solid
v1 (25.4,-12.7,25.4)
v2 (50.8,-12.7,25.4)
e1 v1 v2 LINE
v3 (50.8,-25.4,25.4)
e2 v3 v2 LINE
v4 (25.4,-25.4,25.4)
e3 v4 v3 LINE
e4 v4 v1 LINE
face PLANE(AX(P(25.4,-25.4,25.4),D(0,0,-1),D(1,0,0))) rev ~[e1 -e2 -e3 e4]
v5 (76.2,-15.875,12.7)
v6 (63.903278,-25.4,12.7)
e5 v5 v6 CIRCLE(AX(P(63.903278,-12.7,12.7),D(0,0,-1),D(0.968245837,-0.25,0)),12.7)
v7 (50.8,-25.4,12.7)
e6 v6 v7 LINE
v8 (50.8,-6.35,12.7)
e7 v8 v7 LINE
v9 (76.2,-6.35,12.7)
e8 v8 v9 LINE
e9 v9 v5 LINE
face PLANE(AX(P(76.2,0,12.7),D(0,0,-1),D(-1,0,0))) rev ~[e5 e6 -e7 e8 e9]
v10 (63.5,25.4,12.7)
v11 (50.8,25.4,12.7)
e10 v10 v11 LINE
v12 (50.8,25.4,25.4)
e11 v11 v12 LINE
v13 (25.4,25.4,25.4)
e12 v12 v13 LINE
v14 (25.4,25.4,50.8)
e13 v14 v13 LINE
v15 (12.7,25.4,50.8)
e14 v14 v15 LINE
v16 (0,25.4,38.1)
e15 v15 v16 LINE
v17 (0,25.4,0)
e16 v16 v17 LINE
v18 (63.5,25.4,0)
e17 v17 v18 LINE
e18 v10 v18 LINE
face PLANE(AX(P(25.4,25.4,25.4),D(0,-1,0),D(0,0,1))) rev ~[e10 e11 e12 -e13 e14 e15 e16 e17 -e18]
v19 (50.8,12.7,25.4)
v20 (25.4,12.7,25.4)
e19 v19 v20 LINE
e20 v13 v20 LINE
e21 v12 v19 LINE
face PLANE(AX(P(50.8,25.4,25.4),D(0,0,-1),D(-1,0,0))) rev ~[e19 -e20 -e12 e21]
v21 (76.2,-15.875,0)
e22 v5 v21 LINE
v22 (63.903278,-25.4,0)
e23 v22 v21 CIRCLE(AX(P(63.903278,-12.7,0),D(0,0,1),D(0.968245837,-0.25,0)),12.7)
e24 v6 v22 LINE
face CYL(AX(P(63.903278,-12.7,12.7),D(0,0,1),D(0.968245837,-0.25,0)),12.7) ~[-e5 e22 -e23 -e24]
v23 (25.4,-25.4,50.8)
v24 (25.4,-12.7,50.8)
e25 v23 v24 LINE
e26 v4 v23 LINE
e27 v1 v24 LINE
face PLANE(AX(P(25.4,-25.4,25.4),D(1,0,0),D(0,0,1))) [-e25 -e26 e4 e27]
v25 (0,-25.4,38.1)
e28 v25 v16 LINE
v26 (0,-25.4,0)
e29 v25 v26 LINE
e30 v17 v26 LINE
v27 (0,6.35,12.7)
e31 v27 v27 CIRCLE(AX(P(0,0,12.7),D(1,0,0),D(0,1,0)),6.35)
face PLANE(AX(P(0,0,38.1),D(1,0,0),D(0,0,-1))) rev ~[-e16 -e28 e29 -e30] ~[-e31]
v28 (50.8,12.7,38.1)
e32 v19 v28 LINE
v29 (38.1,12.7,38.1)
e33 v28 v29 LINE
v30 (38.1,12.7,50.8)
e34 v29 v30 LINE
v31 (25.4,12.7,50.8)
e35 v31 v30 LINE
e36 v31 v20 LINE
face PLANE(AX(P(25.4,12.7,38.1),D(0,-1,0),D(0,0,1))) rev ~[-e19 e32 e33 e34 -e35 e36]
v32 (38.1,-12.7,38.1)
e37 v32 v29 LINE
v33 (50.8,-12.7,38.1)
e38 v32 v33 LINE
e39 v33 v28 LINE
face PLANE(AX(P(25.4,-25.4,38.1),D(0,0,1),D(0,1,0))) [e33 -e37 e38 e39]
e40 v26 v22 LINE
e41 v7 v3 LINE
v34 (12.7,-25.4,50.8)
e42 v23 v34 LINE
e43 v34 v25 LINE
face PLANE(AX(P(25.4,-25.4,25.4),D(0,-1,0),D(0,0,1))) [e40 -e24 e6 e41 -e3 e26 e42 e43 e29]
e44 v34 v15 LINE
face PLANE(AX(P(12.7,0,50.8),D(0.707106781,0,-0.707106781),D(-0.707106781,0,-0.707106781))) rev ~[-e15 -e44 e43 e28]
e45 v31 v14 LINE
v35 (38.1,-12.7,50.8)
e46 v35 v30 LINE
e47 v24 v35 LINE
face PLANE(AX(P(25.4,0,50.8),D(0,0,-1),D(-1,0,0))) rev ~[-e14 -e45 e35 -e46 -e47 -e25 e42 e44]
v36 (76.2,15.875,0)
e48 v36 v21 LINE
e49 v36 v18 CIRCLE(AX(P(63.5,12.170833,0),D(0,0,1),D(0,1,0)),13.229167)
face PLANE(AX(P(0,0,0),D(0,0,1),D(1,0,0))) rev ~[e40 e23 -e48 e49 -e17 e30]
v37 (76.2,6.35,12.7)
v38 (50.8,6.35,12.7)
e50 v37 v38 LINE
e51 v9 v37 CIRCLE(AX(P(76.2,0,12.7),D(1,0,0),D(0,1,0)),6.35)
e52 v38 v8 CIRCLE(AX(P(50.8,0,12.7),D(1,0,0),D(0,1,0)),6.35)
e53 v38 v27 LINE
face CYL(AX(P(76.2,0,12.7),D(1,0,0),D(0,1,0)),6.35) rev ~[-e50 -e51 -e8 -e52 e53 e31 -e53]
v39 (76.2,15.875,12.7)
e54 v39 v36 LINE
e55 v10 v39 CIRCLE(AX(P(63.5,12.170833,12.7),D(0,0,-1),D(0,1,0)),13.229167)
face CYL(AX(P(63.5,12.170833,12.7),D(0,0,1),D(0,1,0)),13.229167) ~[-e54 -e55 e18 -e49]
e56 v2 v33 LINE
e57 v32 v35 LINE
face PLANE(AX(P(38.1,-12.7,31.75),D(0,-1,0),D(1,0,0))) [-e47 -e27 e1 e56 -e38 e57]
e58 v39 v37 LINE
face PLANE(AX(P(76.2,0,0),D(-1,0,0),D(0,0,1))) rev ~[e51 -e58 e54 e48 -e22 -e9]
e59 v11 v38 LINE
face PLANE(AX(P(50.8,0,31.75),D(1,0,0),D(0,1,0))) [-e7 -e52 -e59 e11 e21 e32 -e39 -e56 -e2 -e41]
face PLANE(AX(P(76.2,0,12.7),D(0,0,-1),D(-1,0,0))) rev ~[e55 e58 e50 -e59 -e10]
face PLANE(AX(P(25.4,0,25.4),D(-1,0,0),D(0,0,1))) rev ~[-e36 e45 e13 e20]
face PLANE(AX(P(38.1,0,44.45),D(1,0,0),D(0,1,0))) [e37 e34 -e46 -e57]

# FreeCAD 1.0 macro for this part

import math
import FreeCAD as App
import Part
import Sketcher

V = App.Vector
Q = App.Units.Quantity


def add_polygon(sketch, points):
    """Adds a closed chain of lines whose ends are joined by coincident constraints."""
    first, n = sketch.GeometryCount, len(points)
    for a, b in zip(points, points[1:] + points[:1]):
        sketch.addGeometry(Part.LineSegment(App.Vector(*a, 0), App.Vector(*b, 0)), False)
    for i in range(n):
        sketch.addConstraint(Sketcher.Constraint("Coincident", first + i, 2, first + (i + 1) % n, 1))

doc = App.newDocument("Part")
body = doc.addObject("PartDesign::Body", "Body")

sketch1 = body.newObject("Sketcher::SketchObject", "Sketch")
sketch1.AttachmentSupport = (doc.getObject("XZ_Plane"), [""])
sketch1.MapMode = "FlatFace"
add_polygon(sketch1, [(0, 38), (0, 0), (76, 0), (76, 13), (51, 13), (51, 25), (25, 25), (25, 51), (13, 51)])
sketch1.addConstraint([
    Sketcher.Constraint("Vertical", 0),
    Sketcher.Constraint("Horizontal", 1),
    Sketcher.Constraint("Vertical", 2),
    Sketcher.Constraint("Horizontal", 3),
    Sketcher.Constraint("Vertical", 4),
    Sketcher.Constraint("Horizontal", 5),
    Sketcher.Constraint("Vertical", 6),
    Sketcher.Constraint("Horizontal", 7),
    Sketcher.Constraint("Coincident", 0, 2, -1, 1),
    Sketcher.Constraint("Equal", 3, 5),
    Sketcher.Constraint("Equal", 7, 2),
    Sketcher.Constraint("Equal", 2, 4),
    Sketcher.Constraint("Equal", 5, 6),
    Sketcher.Constraint("DistanceX", 1, 1, 1, 2, Q("3 in")),
    Sketcher.Constraint("DistanceX", 3, 2, 3, 1, Q("1 in")),
    Sketcher.Constraint("DistanceX", 7, 2, 7, 1, Q("0.5 in")),
    Sketcher.Constraint("DistanceY", 0, 2, 0, 1, Q("1.5 in")),
])
pad1 = body.newObject("PartDesign::Pad", "Pad")
pad1.Profile = sketch1
pad1.Type = "TwoLengths"
pad1.Length = Q("1 in")
pad1.Length2 = Q("1 in")
pad1.Reversed = True

sketch2 = body.newObject("Sketcher::SketchObject", "Sketch001")
sketch2.AttachmentSupport = (doc.getObject("YZ_Plane"), [""])
sketch2.MapMode = "FlatFace"
sketch2.AttachmentOffset = App.Placement(V(0, 0, 1 * 25.4), App.Rotation())
add_polygon(sketch2, [(-13, 51), (-13, 38), (13, 38), (13, 51)])
sketch2.addConstraint([
    Sketcher.Constraint("Vertical", 0),
    Sketcher.Constraint("Horizontal", 1),
    Sketcher.Constraint("Vertical", 2),
    Sketcher.Constraint("Horizontal", 3),
    Sketcher.Constraint("DistanceX", 1, 1, 1, 2, Q("1 in")),
    Sketcher.Constraint("DistanceY", 0, 2, 0, 1, Q("0.5 in")),
    Sketcher.Constraint("DistanceY", -1, 1, 2, 2, Q("2 in")),
    Sketcher.Constraint("DistanceX", 0, 2, -1, 1, Q("0.5 in")),
])
pad2 = body.newObject("PartDesign::Pad", "Pad001")
pad2.Profile = sketch2
pad2.Length = Q("0.5 in")

sketch3 = body.newObject("Sketcher::SketchObject", "Sketch002")
sketch3.AttachmentSupport = (doc.getObject("YZ_Plane"), [""])
sketch3.MapMode = "FlatFace"
sketch3.AttachmentOffset = App.Placement(V(0, 0, 1 * 25.4), App.Rotation())
add_polygon(sketch3, [(-25, 38), (-25, 25), (25, 25), (25, 38)])
sketch3.addConstraint([
    Sketcher.Constraint("Vertical", 0),
    Sketcher.Constraint("Horizontal", 1),
    Sketcher.Constraint("Vertical", 2),
    Sketcher.Constraint("Horizontal", 3),
    Sketcher.Constraint("DistanceX", 1, 1, 1, 2, Q("2 in")),
    Sketcher.Constraint("DistanceY", 0, 2, 0, 1, Q("0.5 in")),
    Sketcher.Constraint("DistanceX", 0, 2, -1, 1, Q("1 in")),
    Sketcher.Constraint("DistanceY", -1, 1, 0, 2, Q("1 in")),
])
pad3 = body.newObject("PartDesign::Pad", "Pad002")
pad3.Profile = sketch3
pad3.Length = Q("1 in")

sketch4 = body.newObject("Sketcher::SketchObject", "Sketch003")
sketch4.AttachmentSupport = (doc.getObject("XZ_Plane"), [""])
sketch4.MapMode = "FlatFace"
sketch4.AttachmentOffset = App.Placement(V(0, 0, 1 * 25.4), App.Rotation())
add_polygon(sketch4, [(25, 38), (25, 25), (51, 25), (51, 38)])
sketch4.addConstraint([
    Sketcher.Constraint("Vertical", 0),
    Sketcher.Constraint("Horizontal", 1),
    Sketcher.Constraint("Vertical", 2),
    Sketcher.Constraint("Horizontal", 3),
    Sketcher.Constraint("DistanceX", 1, 1, 1, 2, Q("1 in")),
    Sketcher.Constraint("DistanceY", 0, 2, 0, 1, Q("0.5 in")),
    Sketcher.Constraint("DistanceX", -1, 1, 0, 2, Q("1 in")),
    Sketcher.Constraint("DistanceY", -1, 1, 0, 2, Q("1 in")),
])
pocket1 = body.newObject("PartDesign::Pocket", "Pocket")
pocket1.Profile = sketch4
pocket1.Length = Q("0.5 in")

sketch5 = body.newObject("Sketcher::SketchObject", "Sketch004")
sketch5.AttachmentSupport = (doc.getObject("XZ_Plane"), [""])
sketch5.MapMode = "FlatFace"
sketch5.AttachmentOffset = App.Placement(V(0, 0, -1 * 25.4), App.Rotation())
add_polygon(sketch5, [(51, 38), (51, 25), (25, 25), (25, 38)])
sketch5.addConstraint([
    Sketcher.Constraint("Vertical", 0),
    Sketcher.Constraint("Horizontal", 1),
    Sketcher.Constraint("Vertical", 2),
    Sketcher.Constraint("Horizontal", 3),
    Sketcher.Constraint("DistanceX", 1, 2, 1, 1, Q("1 in")),
    Sketcher.Constraint("DistanceY", 0, 2, 0, 1, Q("0.5 in")),
    Sketcher.Constraint("DistanceX", -1, 1, 0, 2, Q("2 in")),
    Sketcher.Constraint("DistanceY", -1, 1, 0, 2, Q("1 in")),
])
pocket2 = body.newObject("PartDesign::Pocket", "Pocket001")
pocket2.Profile = sketch5
pocket2.Length = Q("0.5 in")
pocket2.Reversed = True

sketch6 = body.newObject("Sketcher::SketchObject", "Sketch005")
sketch6.AttachmentSupport = (doc.getObject("YZ_Plane"), [""])
sketch6.MapMode = "FlatFace"
sketch6.AttachmentOffset = App.Placement(V(0, 0, 3 * 25.4), App.Rotation())
sketch6.addGeometry(Part.Circle(V(0, 13, 0), V(0, 0, 1), 6), False)
sketch6.addConstraint([
    Sketcher.Constraint("PointOnObject", 0, 3, -2),
    Sketcher.Constraint("Diameter", 0, Q("0.5 in")),
    Sketcher.Constraint("DistanceY", -1, 1, 0, 3, Q("0.5 in")),
])
pocket3 = body.newObject("PartDesign::Pocket", "Pocket002")
pocket3.Profile = sketch6
pocket3.Type = "ThroughAll"

sketch7 = body.newObject("Sketcher::SketchObject", "Sketch006")
sketch7.AttachmentSupport = (doc.getObject("XY_Plane"), [""])
sketch7.MapMode = "FlatFace"
sketch7.AttachmentOffset = App.Placement(V(0, 0, 0.5 * 25.4), App.Rotation())
sketch7.addGeometry([
    Part.LineSegment(V(76, -25, 0), V(76, -16, 0)),
    Part.ArcOfCircle(Part.Circle(V(64, -13, 0), V(0, 0, 1), 13), math.radians(-90), math.radians(-14)),
    Part.LineSegment(V(64, -25, 0), V(76, -25, 0)),
], False)
sketch7.addConstraint([
    Sketcher.Constraint("Coincident", 0, 2, 1, 2),
    Sketcher.Constraint("Tangent", 1, 1, 2, 1),
    Sketcher.Constraint("Coincident", 2, 2, 0, 1),
    Sketcher.Constraint("Vertical", 0),
    Sketcher.Constraint("Horizontal", 2),
    Sketcher.Constraint("Radius", 1, Q("0.5 in")),
    Sketcher.Constraint("DistanceX", -1, 1, 0, 2, Q("3 in")),
    Sketcher.Constraint("DistanceY", 1, 1, -1, 1, Q("1 in")),
    Sketcher.Constraint("DistanceY", 0, 1, 0, 2, Q("0.375 in")),
])
pocket4 = body.newObject("PartDesign::Pocket", "Pocket003")
pocket4.Profile = sketch7
pocket4.Type = "ThroughAll"

sketch8 = body.newObject("Sketcher::SketchObject", "Sketch007")
sketch8.AttachmentSupport = (doc.getObject("XY_Plane"), [""])
sketch8.MapMode = "FlatFace"
sketch8.AttachmentOffset = App.Placement(V(0, 0, 0.5 * 25.4), App.Rotation())
sketch8.addGeometry([
    Part.ArcOfCircle(Part.Circle(V(64, 12, 0), V(0, 0, 1), 13), math.radians(16), math.radians(90)),
    Part.LineSegment(V(76, 16, 0), V(76, 25, 0)),
    Part.LineSegment(V(76, 25, 0), V(64, 25, 0)),
], False)
sketch8.addConstraint([
    Sketcher.Constraint("Coincident", 0, 1, 1, 1),
    Sketcher.Constraint("Coincident", 1, 2, 2, 1),
    Sketcher.Constraint("Tangent", 2, 2, 0, 2),
    Sketcher.Constraint("Vertical", 1),
    Sketcher.Constraint("Horizontal", 2),
    Sketcher.Constraint("DistanceX", 2, 2, 2, 1, Q("0.5 in")),
    Sketcher.Constraint("DistanceX", -1, 1, 0, 1, Q("3 in")),
    Sketcher.Constraint("DistanceY", -1, 1, 1, 2, Q("1 in")),
    Sketcher.Constraint("DistanceY", 1, 1, 1, 2, Q("0.375 in")),
])
pocket5 = body.newObject("PartDesign::Pocket", "Pocket004")
pocket5.Profile = sketch8
pocket5.Type = "ThroughAll"

doc.recompute()
